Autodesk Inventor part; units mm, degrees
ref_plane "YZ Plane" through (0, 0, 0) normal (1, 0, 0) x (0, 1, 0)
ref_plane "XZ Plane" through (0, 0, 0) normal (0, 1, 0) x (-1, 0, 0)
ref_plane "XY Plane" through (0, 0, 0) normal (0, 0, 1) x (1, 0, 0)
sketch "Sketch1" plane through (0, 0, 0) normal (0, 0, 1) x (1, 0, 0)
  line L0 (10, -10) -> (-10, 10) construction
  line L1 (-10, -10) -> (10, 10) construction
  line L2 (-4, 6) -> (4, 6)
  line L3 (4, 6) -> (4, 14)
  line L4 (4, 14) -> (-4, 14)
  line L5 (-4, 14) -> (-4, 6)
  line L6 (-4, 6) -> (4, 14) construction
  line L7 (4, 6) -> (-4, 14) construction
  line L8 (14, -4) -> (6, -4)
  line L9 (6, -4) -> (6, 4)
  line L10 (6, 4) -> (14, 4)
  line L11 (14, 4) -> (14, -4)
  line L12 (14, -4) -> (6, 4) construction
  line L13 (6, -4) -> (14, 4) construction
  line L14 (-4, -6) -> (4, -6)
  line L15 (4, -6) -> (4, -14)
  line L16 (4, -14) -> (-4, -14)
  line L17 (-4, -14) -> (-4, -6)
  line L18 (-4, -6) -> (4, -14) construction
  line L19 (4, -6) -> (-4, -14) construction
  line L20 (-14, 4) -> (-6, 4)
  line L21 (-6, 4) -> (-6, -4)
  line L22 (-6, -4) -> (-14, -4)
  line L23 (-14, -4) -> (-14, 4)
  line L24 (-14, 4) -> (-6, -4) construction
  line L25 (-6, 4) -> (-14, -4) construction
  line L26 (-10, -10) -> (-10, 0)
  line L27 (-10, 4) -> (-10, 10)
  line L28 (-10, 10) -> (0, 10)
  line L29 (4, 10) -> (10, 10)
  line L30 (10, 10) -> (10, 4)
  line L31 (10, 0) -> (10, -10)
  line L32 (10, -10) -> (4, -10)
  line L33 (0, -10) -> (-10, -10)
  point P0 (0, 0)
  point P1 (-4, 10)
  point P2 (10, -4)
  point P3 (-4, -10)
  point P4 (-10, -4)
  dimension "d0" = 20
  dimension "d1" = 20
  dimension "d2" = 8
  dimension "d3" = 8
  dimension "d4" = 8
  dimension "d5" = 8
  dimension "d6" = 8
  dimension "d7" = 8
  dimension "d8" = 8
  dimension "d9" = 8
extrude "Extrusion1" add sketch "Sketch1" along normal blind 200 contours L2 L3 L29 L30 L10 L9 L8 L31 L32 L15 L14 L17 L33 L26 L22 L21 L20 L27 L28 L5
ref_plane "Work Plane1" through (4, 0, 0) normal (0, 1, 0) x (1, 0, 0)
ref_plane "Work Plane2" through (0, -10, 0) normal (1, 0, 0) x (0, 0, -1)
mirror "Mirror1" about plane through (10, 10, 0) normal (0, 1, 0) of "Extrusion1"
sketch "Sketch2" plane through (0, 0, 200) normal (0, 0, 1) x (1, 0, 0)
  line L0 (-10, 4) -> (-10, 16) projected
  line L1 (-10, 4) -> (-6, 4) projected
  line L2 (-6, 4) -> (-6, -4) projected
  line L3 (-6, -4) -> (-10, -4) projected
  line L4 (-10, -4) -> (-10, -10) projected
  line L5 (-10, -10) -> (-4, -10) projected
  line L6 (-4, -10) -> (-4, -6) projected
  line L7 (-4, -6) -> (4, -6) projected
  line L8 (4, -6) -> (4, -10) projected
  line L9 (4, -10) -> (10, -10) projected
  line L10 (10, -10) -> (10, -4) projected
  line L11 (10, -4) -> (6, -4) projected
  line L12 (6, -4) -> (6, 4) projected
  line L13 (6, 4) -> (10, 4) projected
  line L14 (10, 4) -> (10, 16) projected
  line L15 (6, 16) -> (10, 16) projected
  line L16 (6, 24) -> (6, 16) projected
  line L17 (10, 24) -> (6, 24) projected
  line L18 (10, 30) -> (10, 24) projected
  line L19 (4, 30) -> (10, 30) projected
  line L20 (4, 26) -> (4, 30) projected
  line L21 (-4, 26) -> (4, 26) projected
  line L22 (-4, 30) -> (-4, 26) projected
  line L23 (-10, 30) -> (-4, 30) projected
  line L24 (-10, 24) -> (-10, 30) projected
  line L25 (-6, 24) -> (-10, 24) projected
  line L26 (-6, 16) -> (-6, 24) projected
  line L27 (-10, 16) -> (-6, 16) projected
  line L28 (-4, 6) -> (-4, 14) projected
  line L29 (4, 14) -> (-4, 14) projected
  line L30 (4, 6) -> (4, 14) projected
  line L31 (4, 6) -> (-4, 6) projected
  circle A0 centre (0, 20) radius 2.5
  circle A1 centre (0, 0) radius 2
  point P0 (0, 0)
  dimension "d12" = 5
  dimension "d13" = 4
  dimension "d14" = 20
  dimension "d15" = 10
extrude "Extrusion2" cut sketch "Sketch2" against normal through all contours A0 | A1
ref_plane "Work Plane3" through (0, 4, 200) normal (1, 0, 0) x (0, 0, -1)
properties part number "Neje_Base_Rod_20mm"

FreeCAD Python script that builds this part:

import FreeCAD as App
import Part
import Sketcher
from FreeCAD import Vector

doc = App.newDocument("Part")
params = doc.addObject("Spreadsheet::Sheet", "Params")
for row, (alias, value) in enumerate([
    ("sketch1_width", "8 mm"),
    ("sketch1_width2", "6 mm"),
    ("sketch1_width3", "4 mm"),
    ("pad1_length", "200 mm"),
    ("sketch2_diameter", "5 mm"),
    ("sketch2_diameter2", "4 mm"),
], start=1):
    params.set(f"A{row}", alias)
    params.set(f"B{row}", "=" + value)
    params.setAlias(f"B{row}", alias)

body = doc.addObject("PartDesign::Body", "Body")

# Sketch on XY plane
sketch1 = body.newObject("Sketcher::SketchObject", "Sketch")
sketch1.AttachmentSupport = (doc.getObject("XY_Plane"), [""])
sketch1.MapMode = "FlatFace"
sketch1.addGeometry(Part.LineSegment(Vector(4, 6, 0), Vector(-4, 6, 0)), False)
sketch1.addGeometry(Part.LineSegment(Vector(-4, 6, 0), Vector(-4, 10, 0)), False)
sketch1.addGeometry(Part.LineSegment(Vector(-4, 10, 0), Vector(-10, 10, 0)), False)
sketch1.addGeometry(Part.LineSegment(Vector(-10, 10, 0), Vector(-10, 4, 0)), False)
sketch1.addGeometry(Part.LineSegment(Vector(-10, 4, 0), Vector(-6, 4, 0)), False)
sketch1.addGeometry(Part.LineSegment(Vector(-6, 4, 0), Vector(-6, -4, 0)), False)
sketch1.addGeometry(Part.LineSegment(Vector(-6, -4, 0), Vector(-10, -4, 0)), False)
sketch1.addGeometry(Part.LineSegment(Vector(-10, -4, 0), Vector(-10, -10, 0)), False)
sketch1.addGeometry(Part.LineSegment(Vector(-10, -10, 0), Vector(-4, -10, 0)), False)
sketch1.addGeometry(Part.LineSegment(Vector(-4, -10, 0), Vector(-4, -6, 0)), False)
sketch1.addGeometry(Part.LineSegment(Vector(-4, -6, 0), Vector(4, -6, 0)), False)
sketch1.addGeometry(Part.LineSegment(Vector(4, -6, 0), Vector(4, -10, 0)), False)
sketch1.addGeometry(Part.LineSegment(Vector(4, -10, 0), Vector(10, -10, 0)), False)
sketch1.addGeometry(Part.LineSegment(Vector(10, -10, 0), Vector(10, -4, 0)), False)
sketch1.addGeometry(Part.LineSegment(Vector(10, -4, 0), Vector(6, -4, 0)), False)
sketch1.addGeometry(Part.LineSegment(Vector(6, -4, 0), Vector(6, 4, 0)), False)
sketch1.addGeometry(Part.LineSegment(Vector(6, 4, 0), Vector(10, 4, 0)), False)
sketch1.addGeometry(Part.LineSegment(Vector(10, 4, 0), Vector(10, 10, 0)), False)
sketch1.addGeometry(Part.LineSegment(Vector(10, 10, 0), Vector(4, 10, 0)), False)
sketch1.addGeometry(Part.LineSegment(Vector(4, 10, 0), Vector(4, 6, 0)), False)
sketch1.addConstraint(Sketcher.Constraint("Coincident", 0, 2, 1, 1))
sketch1.addConstraint(Sketcher.Constraint("Coincident", 1, 2, 2, 1))
sketch1.addConstraint(Sketcher.Constraint("Coincident", 2, 2, 3, 1))
sketch1.addConstraint(Sketcher.Constraint("Coincident", 3, 2, 4, 1))
sketch1.addConstraint(Sketcher.Constraint("Coincident", 4, 2, 5, 1))
sketch1.addConstraint(Sketcher.Constraint("Coincident", 5, 2, 6, 1))
sketch1.addConstraint(Sketcher.Constraint("Coincident", 6, 2, 7, 1))
sketch1.addConstraint(Sketcher.Constraint("Coincident", 7, 2, 8, 1))
sketch1.addConstraint(Sketcher.Constraint("Coincident", 8, 2, 9, 1))
sketch1.addConstraint(Sketcher.Constraint("Coincident", 9, 2, 10, 1))
sketch1.addConstraint(Sketcher.Constraint("Coincident", 10, 2, 11, 1))
sketch1.addConstraint(Sketcher.Constraint("Coincident", 11, 2, 12, 1))
sketch1.addConstraint(Sketcher.Constraint("Coincident", 12, 2, 13, 1))
sketch1.addConstraint(Sketcher.Constraint("Coincident", 13, 2, 14, 1))
sketch1.addConstraint(Sketcher.Constraint("Coincident", 14, 2, 15, 1))
sketch1.addConstraint(Sketcher.Constraint("Coincident", 15, 2, 16, 1))
sketch1.addConstraint(Sketcher.Constraint("Coincident", 16, 2, 17, 1))
sketch1.addConstraint(Sketcher.Constraint("Coincident", 17, 2, 18, 1))
sketch1.addConstraint(Sketcher.Constraint("Coincident", 18, 2, 19, 1))
sketch1.addConstraint(Sketcher.Constraint("Coincident", 19, 2, 0, 1))
sketch1.addConstraint(Sketcher.Constraint("Horizontal", 0))
sketch1.addConstraint(Sketcher.Constraint("Vertical", 1))
sketch1.addConstraint(Sketcher.Constraint("Horizontal", 2))
sketch1.addConstraint(Sketcher.Constraint("Vertical", 3))
sketch1.addConstraint(Sketcher.Constraint("Horizontal", 4))
sketch1.addConstraint(Sketcher.Constraint("Vertical", 5))
sketch1.addConstraint(Sketcher.Constraint("Horizontal", 6))
sketch1.addConstraint(Sketcher.Constraint("Vertical", 7))
sketch1.addConstraint(Sketcher.Constraint("Horizontal", 8))
sketch1.addConstraint(Sketcher.Constraint("Vertical", 9))
sketch1.addConstraint(Sketcher.Constraint("Horizontal", 10))
sketch1.addConstraint(Sketcher.Constraint("Vertical", 11))
sketch1.addConstraint(Sketcher.Constraint("Horizontal", 12))
sketch1.addConstraint(Sketcher.Constraint("Vertical", 13))
sketch1.addConstraint(Sketcher.Constraint("Horizontal", 14))
sketch1.addConstraint(Sketcher.Constraint("Vertical", 15))
sketch1.addConstraint(Sketcher.Constraint("Horizontal", 16))
sketch1.addConstraint(Sketcher.Constraint("Vertical", 17))
sketch1.addConstraint(Sketcher.Constraint("Horizontal", 18))
sketch1.addConstraint(Sketcher.Constraint("Vertical", 19))
sketch1.addConstraint(Sketcher.Constraint("Symmetric", 0, 2, 10, 2, -1, 1))
sketch1.addConstraint(Sketcher.Constraint("Symmetric", 2, 2, 12, 2, -1, 1))
sketch1.addConstraint(Sketcher.Constraint("Symmetric", 4, 2, 14, 2, -1, 1))
sketch1.addConstraint(Sketcher.Constraint("Symmetric", 6, 2, 16, 2, -1, 1))
sketch1.addConstraint(Sketcher.Constraint("Symmetric", 8, 2, 18, 2, -1, 1))
sketch1.addConstraint(Sketcher.Constraint("Symmetric", 8, 2, 11, 2, -2))
sketch1.addConstraint(Sketcher.Constraint("Symmetric", 6, 2, 13, 2, -2))
sketch1.addConstraint(Sketcher.Constraint("Equal", 16, 1))
sketch1.addConstraint(Sketcher.Constraint("Equal", 18, 3))
sketch1.addConstraint(Sketcher.Constraint("Equal", 10, 5))
sketch1.addConstraint(Sketcher.Constraint("DistanceX", 0, 2, 0, 1, 8.0))
sketch1.addConstraint(Sketcher.Constraint("DistanceX", 2, 2, 2, 1, 6.0))
sketch1.addConstraint(Sketcher.Constraint("DistanceX", 4, 1, 4, 2, 4.0))
sketch1.setExpression("Constraints[50]", "Params.sketch1_width")
sketch1.setExpression("Constraints[51]", "Params.sketch1_width2")
sketch1.setExpression("Constraints[52]", "Params.sketch1_width3")
pad1 = body.newObject("PartDesign::Pad", "Pad")
pad1.Profile = sketch1
pad1.setExpression("Length", "Params.pad1_length")
doc.recompute()

datumplane = body.newObject("PartDesign::Plane", "DatumPlane")
datumplane.AttachmentSupport = (doc.getObject("XZ_Plane"), [""])
datumplane.MapMode = "FlatFace"
datumplane.AttachmentOffset = App.Placement(Vector(0, 0, -10), App.Rotation())
mirrored = body.newObject("PartDesign::Mirrored", "Mirrored")
mirrored.Originals = [pad1]
mirrored.MirrorPlane = (datumplane, [""])
body.Tip = mirrored

# Sketch on XY plane
sketch2 = body.newObject("Sketcher::SketchObject", "Sketch001")
sketch2.AttachmentSupport = (doc.getObject("XY_Plane"), [""])
sketch2.MapMode = "FlatFace"
sketch2.AttachmentOffset = App.Placement(Vector(0, 0, 200), App.Rotation())
sketch2.addGeometry(Part.Circle(Vector(0, 20, 0), Vector(0, 0, 1), 2.5), False)
sketch2.addGeometry(Part.Circle(Vector(0, 0, 0), Vector(0, 0, 1), 2), False)
sketch2.addConstraint(Sketcher.Constraint("Coincident", 1, 3, -1, 1))
sketch2.addConstraint(Sketcher.Constraint("PointOnObject", 0, 3, -2))
sketch2.addConstraint(Sketcher.Constraint("Diameter", 0, 5.0))
sketch2.addConstraint(Sketcher.Constraint("Diameter", 1, 4.0))
sketch2.addConstraint(Sketcher.Constraint("DistanceY", -1, 1, 0, 3, 20.0))
sketch2.setExpression("Constraints[2]", "Params.sketch2_diameter")
sketch2.setExpression("Constraints[3]", "Params.sketch2_diameter2")
pocket1 = body.newObject("PartDesign::Pocket", "Pocket")
pocket1.Profile = sketch2
pocket1.Type = "ThroughAll"

doc.recompute()
